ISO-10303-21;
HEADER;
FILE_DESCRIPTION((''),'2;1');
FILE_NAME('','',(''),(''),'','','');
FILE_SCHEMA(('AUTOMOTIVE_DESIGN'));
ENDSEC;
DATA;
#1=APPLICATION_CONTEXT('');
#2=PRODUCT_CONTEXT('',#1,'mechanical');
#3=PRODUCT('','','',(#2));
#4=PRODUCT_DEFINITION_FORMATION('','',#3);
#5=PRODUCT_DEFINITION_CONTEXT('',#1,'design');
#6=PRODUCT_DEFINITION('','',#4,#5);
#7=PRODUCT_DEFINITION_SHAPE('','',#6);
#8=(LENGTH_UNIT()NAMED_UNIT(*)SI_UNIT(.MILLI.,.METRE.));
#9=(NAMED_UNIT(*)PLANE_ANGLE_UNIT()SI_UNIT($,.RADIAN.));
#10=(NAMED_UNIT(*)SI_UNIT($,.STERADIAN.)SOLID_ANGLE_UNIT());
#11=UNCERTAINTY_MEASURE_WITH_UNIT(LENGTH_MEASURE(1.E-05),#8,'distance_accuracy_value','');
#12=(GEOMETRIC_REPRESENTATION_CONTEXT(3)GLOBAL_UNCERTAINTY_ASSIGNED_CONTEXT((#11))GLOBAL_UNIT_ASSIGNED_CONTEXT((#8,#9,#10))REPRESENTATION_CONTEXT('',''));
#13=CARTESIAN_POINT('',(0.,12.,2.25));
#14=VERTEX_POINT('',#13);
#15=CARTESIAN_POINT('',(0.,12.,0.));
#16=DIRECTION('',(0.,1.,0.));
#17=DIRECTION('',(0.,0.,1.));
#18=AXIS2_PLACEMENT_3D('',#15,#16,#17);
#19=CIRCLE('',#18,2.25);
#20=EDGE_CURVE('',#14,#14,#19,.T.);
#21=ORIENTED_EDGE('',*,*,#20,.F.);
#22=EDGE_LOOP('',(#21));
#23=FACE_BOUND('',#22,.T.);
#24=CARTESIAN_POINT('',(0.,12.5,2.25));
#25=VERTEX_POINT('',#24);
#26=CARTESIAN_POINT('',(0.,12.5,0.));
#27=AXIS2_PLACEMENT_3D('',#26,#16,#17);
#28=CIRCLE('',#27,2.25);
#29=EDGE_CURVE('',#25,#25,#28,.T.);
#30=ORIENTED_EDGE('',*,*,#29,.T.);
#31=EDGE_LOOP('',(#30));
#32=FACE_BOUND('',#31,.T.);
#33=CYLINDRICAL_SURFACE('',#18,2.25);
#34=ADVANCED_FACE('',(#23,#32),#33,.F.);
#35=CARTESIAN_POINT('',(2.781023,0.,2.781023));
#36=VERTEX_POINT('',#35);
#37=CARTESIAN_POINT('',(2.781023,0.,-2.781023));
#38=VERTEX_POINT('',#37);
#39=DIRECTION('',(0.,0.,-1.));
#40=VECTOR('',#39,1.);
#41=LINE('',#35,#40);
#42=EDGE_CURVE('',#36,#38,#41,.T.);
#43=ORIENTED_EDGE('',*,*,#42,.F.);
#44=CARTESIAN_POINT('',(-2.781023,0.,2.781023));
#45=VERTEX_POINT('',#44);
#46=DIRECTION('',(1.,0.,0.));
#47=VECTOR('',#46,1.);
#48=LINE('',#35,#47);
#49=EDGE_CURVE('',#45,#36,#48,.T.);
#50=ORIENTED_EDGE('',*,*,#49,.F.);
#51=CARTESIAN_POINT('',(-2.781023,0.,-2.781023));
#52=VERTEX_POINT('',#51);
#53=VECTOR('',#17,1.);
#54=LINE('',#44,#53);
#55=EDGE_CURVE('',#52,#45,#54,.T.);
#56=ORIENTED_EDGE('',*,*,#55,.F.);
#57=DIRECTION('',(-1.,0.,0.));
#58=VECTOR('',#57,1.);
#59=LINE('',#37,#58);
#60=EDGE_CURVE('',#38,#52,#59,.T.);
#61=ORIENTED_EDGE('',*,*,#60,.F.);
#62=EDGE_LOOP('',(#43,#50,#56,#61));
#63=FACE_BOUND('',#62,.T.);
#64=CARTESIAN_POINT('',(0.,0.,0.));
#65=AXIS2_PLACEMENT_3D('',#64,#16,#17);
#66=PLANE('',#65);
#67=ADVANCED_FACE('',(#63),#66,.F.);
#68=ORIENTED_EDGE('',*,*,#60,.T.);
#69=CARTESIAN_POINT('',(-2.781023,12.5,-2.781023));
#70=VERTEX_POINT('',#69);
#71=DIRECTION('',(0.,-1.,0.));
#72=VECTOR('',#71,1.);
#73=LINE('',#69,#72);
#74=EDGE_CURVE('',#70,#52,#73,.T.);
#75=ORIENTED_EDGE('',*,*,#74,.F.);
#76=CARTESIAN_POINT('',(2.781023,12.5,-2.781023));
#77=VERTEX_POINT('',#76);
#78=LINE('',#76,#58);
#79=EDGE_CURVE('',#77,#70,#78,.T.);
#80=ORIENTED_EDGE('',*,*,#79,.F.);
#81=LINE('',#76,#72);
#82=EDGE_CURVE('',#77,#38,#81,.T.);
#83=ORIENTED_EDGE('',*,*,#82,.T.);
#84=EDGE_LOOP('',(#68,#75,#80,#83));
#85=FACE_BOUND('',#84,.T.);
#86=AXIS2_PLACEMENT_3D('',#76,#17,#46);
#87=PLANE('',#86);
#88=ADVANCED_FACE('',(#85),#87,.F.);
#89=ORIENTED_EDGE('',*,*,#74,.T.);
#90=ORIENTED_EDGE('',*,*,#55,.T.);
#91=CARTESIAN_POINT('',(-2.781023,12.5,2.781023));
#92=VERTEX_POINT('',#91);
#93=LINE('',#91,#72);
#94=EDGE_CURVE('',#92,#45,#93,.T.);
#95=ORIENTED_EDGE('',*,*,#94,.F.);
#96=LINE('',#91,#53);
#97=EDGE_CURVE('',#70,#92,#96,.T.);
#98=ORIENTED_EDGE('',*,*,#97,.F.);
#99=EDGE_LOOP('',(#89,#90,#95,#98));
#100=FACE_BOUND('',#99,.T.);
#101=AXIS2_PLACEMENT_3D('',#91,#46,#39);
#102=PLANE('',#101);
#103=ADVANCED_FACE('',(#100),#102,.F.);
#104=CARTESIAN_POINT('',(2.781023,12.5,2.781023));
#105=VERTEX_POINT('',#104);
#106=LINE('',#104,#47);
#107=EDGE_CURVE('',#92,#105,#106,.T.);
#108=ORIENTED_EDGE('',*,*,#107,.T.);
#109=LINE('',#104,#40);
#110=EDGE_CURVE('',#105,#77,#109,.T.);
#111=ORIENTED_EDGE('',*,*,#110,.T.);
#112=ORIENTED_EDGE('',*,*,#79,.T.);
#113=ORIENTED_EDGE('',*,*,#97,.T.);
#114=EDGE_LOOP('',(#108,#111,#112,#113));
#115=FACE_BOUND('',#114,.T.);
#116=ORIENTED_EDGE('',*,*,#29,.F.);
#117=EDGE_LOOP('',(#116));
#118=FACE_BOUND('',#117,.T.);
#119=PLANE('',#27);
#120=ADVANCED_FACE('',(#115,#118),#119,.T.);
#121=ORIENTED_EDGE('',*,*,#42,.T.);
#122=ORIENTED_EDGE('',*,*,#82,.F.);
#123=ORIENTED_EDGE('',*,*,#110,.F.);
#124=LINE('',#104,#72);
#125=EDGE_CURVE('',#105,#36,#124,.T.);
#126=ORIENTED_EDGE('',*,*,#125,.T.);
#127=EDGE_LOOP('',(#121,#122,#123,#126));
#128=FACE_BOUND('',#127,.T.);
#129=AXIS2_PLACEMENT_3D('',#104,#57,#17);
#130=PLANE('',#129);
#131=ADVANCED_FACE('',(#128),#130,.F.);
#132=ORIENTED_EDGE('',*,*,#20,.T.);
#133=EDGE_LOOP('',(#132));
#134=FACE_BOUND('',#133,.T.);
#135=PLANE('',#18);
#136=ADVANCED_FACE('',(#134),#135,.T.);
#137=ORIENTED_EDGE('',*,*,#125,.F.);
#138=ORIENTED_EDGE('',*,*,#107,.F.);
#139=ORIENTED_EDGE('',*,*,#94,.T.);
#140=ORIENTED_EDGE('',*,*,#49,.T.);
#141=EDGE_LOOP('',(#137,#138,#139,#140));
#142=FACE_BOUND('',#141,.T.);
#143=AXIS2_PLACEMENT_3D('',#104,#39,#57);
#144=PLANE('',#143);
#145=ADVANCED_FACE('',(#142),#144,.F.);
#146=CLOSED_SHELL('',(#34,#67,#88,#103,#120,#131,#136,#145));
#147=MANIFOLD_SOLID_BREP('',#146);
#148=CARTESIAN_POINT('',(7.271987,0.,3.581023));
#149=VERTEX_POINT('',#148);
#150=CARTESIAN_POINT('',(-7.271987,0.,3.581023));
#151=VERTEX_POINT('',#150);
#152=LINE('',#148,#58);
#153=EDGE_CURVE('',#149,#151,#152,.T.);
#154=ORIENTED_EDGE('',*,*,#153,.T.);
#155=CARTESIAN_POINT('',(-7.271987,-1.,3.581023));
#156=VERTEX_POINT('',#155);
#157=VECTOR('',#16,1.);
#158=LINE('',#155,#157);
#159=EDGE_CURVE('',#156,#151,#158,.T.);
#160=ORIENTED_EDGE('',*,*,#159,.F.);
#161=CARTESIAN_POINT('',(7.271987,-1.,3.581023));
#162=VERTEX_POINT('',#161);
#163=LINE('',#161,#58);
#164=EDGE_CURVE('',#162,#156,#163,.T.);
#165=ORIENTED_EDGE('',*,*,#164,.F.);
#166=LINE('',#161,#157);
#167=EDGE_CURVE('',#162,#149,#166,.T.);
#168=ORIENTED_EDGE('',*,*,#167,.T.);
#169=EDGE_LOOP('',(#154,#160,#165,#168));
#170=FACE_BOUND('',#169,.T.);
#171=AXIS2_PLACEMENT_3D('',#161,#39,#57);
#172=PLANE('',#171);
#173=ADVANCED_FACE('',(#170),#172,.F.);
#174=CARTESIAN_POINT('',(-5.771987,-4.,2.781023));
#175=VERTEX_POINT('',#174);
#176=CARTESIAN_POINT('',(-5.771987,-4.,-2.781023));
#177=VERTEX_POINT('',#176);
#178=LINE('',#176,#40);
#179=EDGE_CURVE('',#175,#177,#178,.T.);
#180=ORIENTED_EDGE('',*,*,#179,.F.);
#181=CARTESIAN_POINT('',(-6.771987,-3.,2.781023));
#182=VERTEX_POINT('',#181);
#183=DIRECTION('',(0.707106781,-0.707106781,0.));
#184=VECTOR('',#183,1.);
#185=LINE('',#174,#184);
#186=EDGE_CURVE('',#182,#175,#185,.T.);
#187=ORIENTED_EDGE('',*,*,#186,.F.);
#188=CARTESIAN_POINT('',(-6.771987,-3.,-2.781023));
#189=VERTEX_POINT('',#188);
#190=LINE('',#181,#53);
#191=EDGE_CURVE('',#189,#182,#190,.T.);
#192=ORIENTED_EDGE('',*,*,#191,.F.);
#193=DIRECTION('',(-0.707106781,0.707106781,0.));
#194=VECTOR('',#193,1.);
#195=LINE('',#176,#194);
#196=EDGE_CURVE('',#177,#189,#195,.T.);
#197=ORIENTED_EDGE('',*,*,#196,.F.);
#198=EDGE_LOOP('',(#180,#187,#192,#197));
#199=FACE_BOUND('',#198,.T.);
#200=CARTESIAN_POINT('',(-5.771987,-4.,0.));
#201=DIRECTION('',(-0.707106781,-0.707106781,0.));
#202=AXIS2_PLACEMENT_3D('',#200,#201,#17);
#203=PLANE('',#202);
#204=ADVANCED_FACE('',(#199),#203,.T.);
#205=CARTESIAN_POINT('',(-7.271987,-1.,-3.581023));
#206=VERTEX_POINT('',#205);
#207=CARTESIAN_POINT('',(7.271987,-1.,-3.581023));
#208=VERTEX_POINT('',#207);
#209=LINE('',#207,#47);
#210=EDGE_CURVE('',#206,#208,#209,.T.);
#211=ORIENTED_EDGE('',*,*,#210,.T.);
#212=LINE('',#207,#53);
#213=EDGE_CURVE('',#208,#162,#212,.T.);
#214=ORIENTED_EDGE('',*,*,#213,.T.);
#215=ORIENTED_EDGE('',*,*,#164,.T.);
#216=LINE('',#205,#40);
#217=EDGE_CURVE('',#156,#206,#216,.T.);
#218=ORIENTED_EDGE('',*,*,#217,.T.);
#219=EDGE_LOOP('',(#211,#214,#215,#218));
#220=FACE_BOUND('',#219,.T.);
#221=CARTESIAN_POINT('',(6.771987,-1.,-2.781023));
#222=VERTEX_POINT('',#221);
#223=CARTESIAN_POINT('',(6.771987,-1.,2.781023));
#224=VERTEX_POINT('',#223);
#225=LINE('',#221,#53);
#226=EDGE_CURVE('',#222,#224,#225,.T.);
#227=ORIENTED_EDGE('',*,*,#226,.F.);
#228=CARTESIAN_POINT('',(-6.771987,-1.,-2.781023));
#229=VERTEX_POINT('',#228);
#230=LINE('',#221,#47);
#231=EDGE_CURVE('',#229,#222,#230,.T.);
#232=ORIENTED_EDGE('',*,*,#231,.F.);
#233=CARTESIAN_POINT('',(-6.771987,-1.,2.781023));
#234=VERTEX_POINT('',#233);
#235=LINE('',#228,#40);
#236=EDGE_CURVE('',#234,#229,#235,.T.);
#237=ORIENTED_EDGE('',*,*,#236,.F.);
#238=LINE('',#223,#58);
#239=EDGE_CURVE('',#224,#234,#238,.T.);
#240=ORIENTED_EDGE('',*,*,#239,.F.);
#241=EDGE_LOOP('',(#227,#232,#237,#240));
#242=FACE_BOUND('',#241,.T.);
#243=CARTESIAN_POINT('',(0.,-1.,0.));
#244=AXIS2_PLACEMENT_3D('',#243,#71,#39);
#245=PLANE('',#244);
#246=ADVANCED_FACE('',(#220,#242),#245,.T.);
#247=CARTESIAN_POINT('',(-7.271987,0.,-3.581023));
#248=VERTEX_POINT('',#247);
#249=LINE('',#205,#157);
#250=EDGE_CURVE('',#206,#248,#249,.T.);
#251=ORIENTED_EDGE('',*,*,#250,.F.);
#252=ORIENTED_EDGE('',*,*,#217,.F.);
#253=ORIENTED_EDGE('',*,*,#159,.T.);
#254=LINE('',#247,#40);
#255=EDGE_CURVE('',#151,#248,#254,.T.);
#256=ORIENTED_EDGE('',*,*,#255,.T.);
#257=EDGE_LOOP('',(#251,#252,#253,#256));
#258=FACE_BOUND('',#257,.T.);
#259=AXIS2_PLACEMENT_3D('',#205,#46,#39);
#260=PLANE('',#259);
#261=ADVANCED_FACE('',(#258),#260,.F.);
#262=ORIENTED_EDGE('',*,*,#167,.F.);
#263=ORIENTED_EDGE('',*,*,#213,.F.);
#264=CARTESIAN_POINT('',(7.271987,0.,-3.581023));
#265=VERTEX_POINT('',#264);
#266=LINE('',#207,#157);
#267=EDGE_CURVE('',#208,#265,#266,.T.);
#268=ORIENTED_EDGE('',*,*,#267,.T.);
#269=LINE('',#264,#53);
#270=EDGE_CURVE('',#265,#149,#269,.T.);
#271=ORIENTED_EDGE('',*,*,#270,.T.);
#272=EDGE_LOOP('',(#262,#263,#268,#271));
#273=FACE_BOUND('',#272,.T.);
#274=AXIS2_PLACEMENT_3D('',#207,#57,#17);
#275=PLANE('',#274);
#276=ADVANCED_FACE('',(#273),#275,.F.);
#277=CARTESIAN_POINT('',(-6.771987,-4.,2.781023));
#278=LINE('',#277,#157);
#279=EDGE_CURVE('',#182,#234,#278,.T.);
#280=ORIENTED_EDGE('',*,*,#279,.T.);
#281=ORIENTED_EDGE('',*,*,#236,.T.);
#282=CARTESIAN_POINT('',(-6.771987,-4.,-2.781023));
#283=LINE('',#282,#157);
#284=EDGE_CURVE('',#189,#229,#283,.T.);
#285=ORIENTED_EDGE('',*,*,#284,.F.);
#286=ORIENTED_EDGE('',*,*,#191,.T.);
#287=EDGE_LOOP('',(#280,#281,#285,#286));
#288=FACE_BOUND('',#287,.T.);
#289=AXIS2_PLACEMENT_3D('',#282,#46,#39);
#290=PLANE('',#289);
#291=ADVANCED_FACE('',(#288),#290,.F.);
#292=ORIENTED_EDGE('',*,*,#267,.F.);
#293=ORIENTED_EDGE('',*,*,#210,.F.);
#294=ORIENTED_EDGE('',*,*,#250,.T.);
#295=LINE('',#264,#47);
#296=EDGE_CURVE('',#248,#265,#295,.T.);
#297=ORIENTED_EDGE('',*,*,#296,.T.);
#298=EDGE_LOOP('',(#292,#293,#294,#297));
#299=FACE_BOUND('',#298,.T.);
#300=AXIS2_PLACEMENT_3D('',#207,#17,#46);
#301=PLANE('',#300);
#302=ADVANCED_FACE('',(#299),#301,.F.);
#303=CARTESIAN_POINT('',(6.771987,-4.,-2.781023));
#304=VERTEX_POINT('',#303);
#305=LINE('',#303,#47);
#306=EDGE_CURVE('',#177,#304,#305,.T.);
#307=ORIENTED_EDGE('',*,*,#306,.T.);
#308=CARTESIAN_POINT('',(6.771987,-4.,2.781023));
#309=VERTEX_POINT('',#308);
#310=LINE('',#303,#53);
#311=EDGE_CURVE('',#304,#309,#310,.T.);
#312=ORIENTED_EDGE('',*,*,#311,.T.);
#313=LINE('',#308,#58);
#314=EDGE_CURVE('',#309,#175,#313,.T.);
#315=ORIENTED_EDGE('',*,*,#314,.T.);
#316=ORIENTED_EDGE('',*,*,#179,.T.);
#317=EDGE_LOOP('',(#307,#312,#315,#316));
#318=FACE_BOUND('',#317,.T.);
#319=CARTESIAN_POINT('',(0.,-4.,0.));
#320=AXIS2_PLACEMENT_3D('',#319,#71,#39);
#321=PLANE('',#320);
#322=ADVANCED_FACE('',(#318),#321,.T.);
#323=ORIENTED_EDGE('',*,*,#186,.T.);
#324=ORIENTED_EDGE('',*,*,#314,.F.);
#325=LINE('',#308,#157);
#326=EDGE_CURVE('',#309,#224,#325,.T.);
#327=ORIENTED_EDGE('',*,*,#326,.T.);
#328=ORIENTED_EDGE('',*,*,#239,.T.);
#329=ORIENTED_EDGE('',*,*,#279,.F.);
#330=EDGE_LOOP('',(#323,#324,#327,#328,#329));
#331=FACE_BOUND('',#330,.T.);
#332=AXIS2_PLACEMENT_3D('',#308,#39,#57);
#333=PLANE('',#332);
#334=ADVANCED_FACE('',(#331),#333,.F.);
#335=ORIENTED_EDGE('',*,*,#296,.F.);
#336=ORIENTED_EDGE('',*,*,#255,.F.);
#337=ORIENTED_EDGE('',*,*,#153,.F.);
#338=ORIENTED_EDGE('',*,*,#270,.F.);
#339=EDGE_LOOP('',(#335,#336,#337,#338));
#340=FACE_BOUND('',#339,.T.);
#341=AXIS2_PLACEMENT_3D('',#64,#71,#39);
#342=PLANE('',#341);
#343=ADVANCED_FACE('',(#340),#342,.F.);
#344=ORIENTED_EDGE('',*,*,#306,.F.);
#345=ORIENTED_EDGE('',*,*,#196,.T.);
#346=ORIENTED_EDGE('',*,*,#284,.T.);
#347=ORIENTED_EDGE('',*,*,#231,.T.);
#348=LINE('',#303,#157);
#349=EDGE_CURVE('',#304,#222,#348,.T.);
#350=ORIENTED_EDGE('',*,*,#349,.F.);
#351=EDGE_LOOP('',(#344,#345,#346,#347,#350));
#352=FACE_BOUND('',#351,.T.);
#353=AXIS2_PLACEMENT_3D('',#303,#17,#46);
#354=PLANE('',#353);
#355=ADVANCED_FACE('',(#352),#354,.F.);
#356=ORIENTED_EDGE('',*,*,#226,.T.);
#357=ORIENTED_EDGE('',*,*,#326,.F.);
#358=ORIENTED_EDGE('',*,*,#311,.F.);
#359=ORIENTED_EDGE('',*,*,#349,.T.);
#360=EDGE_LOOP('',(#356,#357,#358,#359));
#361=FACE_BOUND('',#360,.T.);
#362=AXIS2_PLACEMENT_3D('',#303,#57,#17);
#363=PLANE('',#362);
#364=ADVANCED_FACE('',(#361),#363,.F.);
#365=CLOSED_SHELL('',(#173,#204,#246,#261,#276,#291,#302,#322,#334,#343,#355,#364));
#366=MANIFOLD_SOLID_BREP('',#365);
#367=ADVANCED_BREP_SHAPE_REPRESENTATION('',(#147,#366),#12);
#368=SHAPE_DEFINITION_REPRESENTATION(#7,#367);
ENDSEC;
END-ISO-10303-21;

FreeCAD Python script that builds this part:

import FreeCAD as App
import Part
import Sketcher


def edges_at(feature, points):
    """Names of the edges that pass closest to the given points."""
    edges = feature.Shape.Edges
    near = lambda p: min(range(len(edges)), key=lambda i: edges[i].distToShape(Part.Vertex(*p))[0])
    return sorted({f"Edge{near(p) + 1}" for p in points})


def add_polygon(sketch, points):
    """Adds a closed chain of lines whose ends are joined by coincident constraints."""
    first, n = sketch.GeometryCount, len(points)
    for a, b in zip(points, points[1:] + points[:1]):
        sketch.addGeometry(Part.LineSegment(App.Vector(*a, 0), App.Vector(*b, 0)), False)
    for i in range(n):
        sketch.addConstraint(Sketcher.Constraint("Coincident", first + i, 2, first + (i + 1) % n, 1))

doc = App.newDocument("Part")
params = doc.addObject("Spreadsheet::Sheet", "Params")
for row, (alias, value) in enumerate([
    ("pad1_length", "12.5 mm"),
    ("sketch2_diameter", "4.5 mm"),
    ("pocket1_length", "0.5 mm"),
    ("pad2_length", "1 mm"),
    ("pad3_length", "3 mm"),
    ("chamfer_size", "1 mm"),
], start=1):
    params.set(f"A{row}", alias)
    params.set(f"B{row}", "=" + value)
    params.setAlias(f"B{row}", alias)

body = doc.addObject("PartDesign::Body", "Body")

sketch1 = doc.addObject("Sketcher::SketchObject", "Sketch")
body.addObject(sketch1)
sketch1.AttachmentSupport = (doc.XZ_Plane, [""])
sketch1.MapMode = "FlatFace"
add_polygon(sketch1, [(-3, -3), (-3, 3), (3, 3), (3, -3)])
sketch1.addConstraint([
    Sketcher.Constraint("Vertical", 0),
    Sketcher.Constraint("Horizontal", 1),
    Sketcher.Constraint("Vertical", 2),
    Sketcher.Constraint("Horizontal", 3),
    Sketcher.Constraint("Symmetric", 0, 2, 2, 2, -1, 1),
    Sketcher.Constraint("Equal", 3, 0),
    Sketcher.Constraint("DistanceX", 1, 1, 1, 2, 5.562046),
])
pad1 = doc.addObject("PartDesign::Pad", "Pad")
body.addObject(pad1)
pad1.Profile = sketch1
pad1.setExpression("Length", "Params.pad1_length")
pad1.Reversed = True

sketch2 = doc.addObject("Sketcher::SketchObject", "Sketch001")
body.addObject(sketch2)
sketch2.AttachmentSupport = (doc.XZ_Plane, [""])
sketch2.MapMode = "FlatFace"
sketch2.AttachmentOffset = App.Placement(App.Vector(0, 0, -12.5), App.Rotation())
sketch2.addGeometry(Part.Circle(App.Vector(0, 0, 0), App.Vector(0, 0, 1), 2.2), False)
sketch2.addConstraint([
    Sketcher.Constraint("Coincident", 0, 3, -1, 1),
    Sketcher.Constraint("Diameter", 0, 4.5),
])
sketch2.setExpression("Constraints[1]", "Params.sketch2_diameter")
pocket1 = doc.addObject("PartDesign::Pocket", "Pocket")
body.addObject(pocket1)
pocket1.Profile = sketch2
pocket1.setExpression("Length", "Params.pocket1_length")
pocket1.Reversed = True
body2 = doc.addObject("PartDesign::Body", "Body001")

sketch3 = doc.addObject("Sketcher::SketchObject", "Sketch002")
body2.addObject(sketch3)
sketch3.AttachmentSupport = (doc.getObject("XZ_Plane001"), [""])
sketch3.MapMode = "FlatFace"
add_polygon(sketch3, [(-7, 4), (-7, -4), (7, -4), (7, 4)])
sketch3.addConstraint([
    Sketcher.Constraint("Vertical", 0),
    Sketcher.Constraint("Horizontal", 1),
    Sketcher.Constraint("Vertical", 2),
    Sketcher.Constraint("Horizontal", 3),
    Sketcher.Constraint("Symmetric", 0, 2, 2, 2, -1, 1),
    Sketcher.Constraint("DistanceX", 1, 1, 1, 2, 14.543974),
    Sketcher.Constraint("DistanceY", 0, 2, 0, 1, 7.162046),
])
pad2 = doc.addObject("PartDesign::Pad", "Pad001")
body2.addObject(pad2)
pad2.Profile = sketch3
pad2.setExpression("Length", "Params.pad2_length")

sketch4 = doc.addObject("Sketcher::SketchObject", "Sketch003")
body2.addObject(sketch4)
sketch4.AttachmentSupport = (doc.getObject("XZ_Plane001"), [""])
sketch4.MapMode = "FlatFace"
sketch4.AttachmentOffset = App.Placement(App.Vector(0, 0, 1), App.Rotation())
add_polygon(sketch4, [(-7, 3), (-7, -3), (7, -3), (7, 3)])
sketch4.addConstraint([
    Sketcher.Constraint("Vertical", 0),
    Sketcher.Constraint("Horizontal", 1),
    Sketcher.Constraint("Vertical", 2),
    Sketcher.Constraint("Horizontal", 3),
    Sketcher.Constraint("Symmetric", 0, 2, 2, 2, -1, 1),
    Sketcher.Constraint("DistanceX", 1, 1, 1, 2, 13.543974),
    Sketcher.Constraint("DistanceY", 0, 2, 0, 1, 5.562046),
])
pad3 = doc.addObject("PartDesign::Pad", "Pad002")
body2.addObject(pad3)
pad3.Profile = sketch4
pad3.setExpression("Length", "Params.pad3_length")
doc.recompute()

chamfer = doc.addObject("PartDesign::Chamfer", "Chamfer")
body2.addObject(chamfer)
chamfer.Base = (pad3, edges_at(pad3, [(-6.772, -4, 0)]))
chamfer.setExpression("Size", "Params.chamfer_size")

doc.recompute()
